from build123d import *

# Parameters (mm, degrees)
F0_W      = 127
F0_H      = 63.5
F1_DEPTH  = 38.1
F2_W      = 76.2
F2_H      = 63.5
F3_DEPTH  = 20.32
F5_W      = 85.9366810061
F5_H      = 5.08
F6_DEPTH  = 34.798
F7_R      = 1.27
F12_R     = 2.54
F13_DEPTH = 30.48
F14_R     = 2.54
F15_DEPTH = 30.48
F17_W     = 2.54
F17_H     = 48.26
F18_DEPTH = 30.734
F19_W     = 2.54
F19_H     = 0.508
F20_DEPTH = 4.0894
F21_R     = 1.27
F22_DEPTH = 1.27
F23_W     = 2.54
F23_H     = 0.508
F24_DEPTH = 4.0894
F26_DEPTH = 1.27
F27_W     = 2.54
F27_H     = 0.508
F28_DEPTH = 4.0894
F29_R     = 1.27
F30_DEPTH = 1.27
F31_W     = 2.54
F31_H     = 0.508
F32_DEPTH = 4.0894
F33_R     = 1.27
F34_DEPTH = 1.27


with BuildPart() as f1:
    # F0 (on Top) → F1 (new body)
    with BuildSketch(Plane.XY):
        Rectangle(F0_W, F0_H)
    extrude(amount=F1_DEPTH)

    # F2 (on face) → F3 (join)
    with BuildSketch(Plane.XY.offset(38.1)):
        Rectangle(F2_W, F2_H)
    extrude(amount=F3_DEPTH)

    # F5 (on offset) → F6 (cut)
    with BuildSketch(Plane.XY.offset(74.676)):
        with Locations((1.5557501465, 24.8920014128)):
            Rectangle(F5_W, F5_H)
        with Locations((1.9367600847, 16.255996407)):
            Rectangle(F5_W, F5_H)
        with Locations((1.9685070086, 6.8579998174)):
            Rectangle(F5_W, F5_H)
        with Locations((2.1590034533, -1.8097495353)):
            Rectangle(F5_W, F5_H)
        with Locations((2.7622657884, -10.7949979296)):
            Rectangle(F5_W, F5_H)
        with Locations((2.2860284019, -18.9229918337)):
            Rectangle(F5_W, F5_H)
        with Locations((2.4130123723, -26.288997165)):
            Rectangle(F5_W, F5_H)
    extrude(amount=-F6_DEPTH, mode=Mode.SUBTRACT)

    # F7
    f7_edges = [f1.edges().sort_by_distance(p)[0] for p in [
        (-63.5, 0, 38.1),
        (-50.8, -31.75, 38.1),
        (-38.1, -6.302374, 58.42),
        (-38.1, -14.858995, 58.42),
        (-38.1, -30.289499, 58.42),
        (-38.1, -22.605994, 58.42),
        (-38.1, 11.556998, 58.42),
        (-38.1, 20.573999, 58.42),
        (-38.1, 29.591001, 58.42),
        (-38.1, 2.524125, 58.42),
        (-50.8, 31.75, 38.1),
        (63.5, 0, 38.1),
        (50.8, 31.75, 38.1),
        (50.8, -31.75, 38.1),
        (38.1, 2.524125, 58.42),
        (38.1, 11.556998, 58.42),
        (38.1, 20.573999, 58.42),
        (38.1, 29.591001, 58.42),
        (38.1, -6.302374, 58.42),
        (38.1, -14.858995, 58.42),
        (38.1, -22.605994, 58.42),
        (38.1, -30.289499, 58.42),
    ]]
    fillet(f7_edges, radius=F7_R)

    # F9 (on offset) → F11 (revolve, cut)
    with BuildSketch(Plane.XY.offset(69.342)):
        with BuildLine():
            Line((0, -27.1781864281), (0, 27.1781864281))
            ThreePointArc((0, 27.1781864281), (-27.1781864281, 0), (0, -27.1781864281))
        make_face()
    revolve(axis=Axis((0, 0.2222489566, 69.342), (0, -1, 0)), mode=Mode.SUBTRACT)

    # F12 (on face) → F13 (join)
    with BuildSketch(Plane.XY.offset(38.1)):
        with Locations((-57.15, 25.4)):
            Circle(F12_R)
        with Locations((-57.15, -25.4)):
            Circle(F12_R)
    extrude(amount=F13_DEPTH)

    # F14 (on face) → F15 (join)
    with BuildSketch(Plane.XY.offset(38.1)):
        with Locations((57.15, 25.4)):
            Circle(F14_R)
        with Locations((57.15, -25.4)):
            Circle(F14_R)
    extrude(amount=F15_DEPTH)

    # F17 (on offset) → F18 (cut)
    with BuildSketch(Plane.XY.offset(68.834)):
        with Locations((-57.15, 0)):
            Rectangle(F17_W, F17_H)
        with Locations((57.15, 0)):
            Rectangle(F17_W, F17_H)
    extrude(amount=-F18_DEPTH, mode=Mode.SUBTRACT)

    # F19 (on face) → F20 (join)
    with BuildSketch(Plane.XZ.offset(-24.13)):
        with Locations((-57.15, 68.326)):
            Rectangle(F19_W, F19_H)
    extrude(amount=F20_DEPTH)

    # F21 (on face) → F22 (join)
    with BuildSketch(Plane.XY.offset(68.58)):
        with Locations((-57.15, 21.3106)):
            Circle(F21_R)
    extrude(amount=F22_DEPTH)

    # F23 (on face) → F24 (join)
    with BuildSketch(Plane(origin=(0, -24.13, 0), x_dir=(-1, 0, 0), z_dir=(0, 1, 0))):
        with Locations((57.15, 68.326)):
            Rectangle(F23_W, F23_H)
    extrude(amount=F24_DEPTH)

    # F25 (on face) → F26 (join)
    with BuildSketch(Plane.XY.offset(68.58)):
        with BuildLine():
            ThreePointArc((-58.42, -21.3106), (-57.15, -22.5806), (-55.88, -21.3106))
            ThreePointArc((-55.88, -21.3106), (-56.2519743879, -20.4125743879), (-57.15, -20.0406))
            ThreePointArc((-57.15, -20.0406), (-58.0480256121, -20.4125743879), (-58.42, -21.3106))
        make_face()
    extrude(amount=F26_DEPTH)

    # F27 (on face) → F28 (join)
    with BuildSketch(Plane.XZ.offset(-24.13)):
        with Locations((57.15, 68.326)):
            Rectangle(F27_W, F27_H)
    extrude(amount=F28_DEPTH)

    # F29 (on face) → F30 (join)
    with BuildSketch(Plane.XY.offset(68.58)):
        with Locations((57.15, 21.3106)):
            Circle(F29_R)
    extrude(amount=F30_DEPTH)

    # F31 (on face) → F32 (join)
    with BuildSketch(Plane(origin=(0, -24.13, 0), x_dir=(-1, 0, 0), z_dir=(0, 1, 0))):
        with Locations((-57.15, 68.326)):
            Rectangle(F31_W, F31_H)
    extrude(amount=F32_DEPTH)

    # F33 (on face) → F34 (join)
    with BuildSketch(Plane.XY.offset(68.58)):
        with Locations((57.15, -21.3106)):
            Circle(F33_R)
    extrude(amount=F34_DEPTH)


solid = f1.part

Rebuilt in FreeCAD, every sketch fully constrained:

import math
import FreeCAD as App
import Part
import Sketcher
Q = App.Units.Quantity


def edges_at(feature, points):
    """Names of the edges that pass closest to the given points."""
    edges = feature.Shape.Edges
    near = lambda p: min(range(len(edges)), key=lambda i: edges[i].distToShape(Part.Vertex(*p))[0])
    return sorted({f"Edge{near(p) + 1}" for p in points})


def add_polygon(sketch, points):
    """Adds a closed chain of lines whose ends are joined by coincident constraints."""
    first, n = sketch.GeometryCount, len(points)
    for a, b in zip(points, points[1:] + points[:1]):
        sketch.addGeometry(Part.LineSegment(App.Vector(*a, 0), App.Vector(*b, 0)), False)
    for i in range(n):
        sketch.addConstraint(Sketcher.Constraint("Coincident", first + i, 2, first + (i + 1) % n, 1))

doc = App.newDocument("Part")
params = doc.addObject("Spreadsheet::Sheet", "Params")
for row, (alias, value) in enumerate([
    ("sketch1_width", "5 in"),
    ("sketch1_height", "2.5 in"),
    ("pad1_length", "1.5 in"),
    ("sketch2_width", "3 in"),
    ("sketch2_height", "2.5 in"),
    ("pad2_length", "0.8 in"),
    ("sketch3_height", "0.2 in"),
    ("pocket1_length", "1.37 in"),
    ("fillet_radius", "0.05 in"),
    ("groove_angle", "360 deg"),
    ("sketch5_diameter", "0.2 in"),
    ("pad3_length", "1.2 in"),
    ("sketch6_diameter", "0.2 in"),
    ("pad4_length", "1.2 in"),
    ("sketch7_width", "0.1 in"),
    ("sketch7_height", "1.9 in"),
    ("pocket2_length", "1.21 in"),
    ("sketch8_width", "0.1 in"),
    ("sketch8_height", "0.02 in"),
    ("pad5_length", "0.161 in"),
    ("sketch9_diameter", "0.1 in"),
    ("pad6_length", "0.05 in"),
    ("sketch10_width", "0.1 in"),
    ("sketch10_height", "0.02 in"),
    ("pad7_length", "0.161 in"),
    ("sketch11_radius", "0.05 in"),
    ("pad8_length", "0.05 in"),
    ("sketch12_width", "0.1 in"),
    ("sketch12_height", "0.02 in"),
    ("pad9_length", "0.161 in"),
    ("sketch13_diameter", "0.1 in"),
    ("pad10_length", "0.05 in"),
    ("sketch14_width", "0.1 in"),
    ("sketch14_height", "0.02 in"),
    ("pad11_length", "0.161 in"),
    ("sketch15_diameter", "0.1 in"),
    ("pad12_length", "0.05 in"),
], start=1):
    params.set(f"A{row}", alias)
    params.set(f"B{row}", "=" + value)
    params.setAlias(f"B{row}", alias)

body = doc.addObject("PartDesign::Body", "Body")

sketch1 = body.newObject("Sketcher::SketchObject", "Sketch")
sketch1.AttachmentSupport = (doc.getObject("XY_Plane"), [""])
sketch1.MapMode = "FlatFace"
add_polygon(sketch1, [(-64, 32), (-64, -32), (64, -32), (64, 32)])
sketch1.addConstraint(Sketcher.Constraint("Vertical", 0))
sketch1.addConstraint(Sketcher.Constraint("Horizontal", 1))
sketch1.addConstraint(Sketcher.Constraint("Vertical", 2))
sketch1.addConstraint(Sketcher.Constraint("Horizontal", 3))
sketch1.addConstraint(Sketcher.Constraint("Symmetric", 0, 2, 2, 2, -1, 1))
sketch1.addConstraint(Sketcher.Constraint("DistanceX", 1, 1, 1, 2, Q("5 in")))
sketch1.addConstraint(Sketcher.Constraint("DistanceY", 0, 2, 0, 1, Q("2.5 in")))
sketch1.setExpression("Constraints[9]", "Params.sketch1_width")
sketch1.setExpression("Constraints[10]", "Params.sketch1_height")
pad1 = body.newObject("PartDesign::Pad", "Pad")
pad1.Profile = sketch1
pad1.setExpression("Length", "Params.pad1_length")

sketch2 = body.newObject("Sketcher::SketchObject", "Sketch001")
sketch2.AttachmentSupport = (doc.getObject("XY_Plane"), [""])
sketch2.MapMode = "FlatFace"
sketch2.AttachmentOffset = App.Placement(App.Vector(0, 0, 1.5 * 25.4), App.Rotation())
add_polygon(sketch2, [(-38, 32), (-38, -32), (38, -32), (38, 32)])
sketch2.addConstraint(Sketcher.Constraint("Vertical", 0))
sketch2.addConstraint(Sketcher.Constraint("Horizontal", 1))
sketch2.addConstraint(Sketcher.Constraint("Vertical", 2))
sketch2.addConstraint(Sketcher.Constraint("Horizontal", 3))
sketch2.addConstraint(Sketcher.Constraint("Symmetric", 0, 2, 2, 2, -1, 1))
sketch2.addConstraint(Sketcher.Constraint("DistanceX", 1, 1, 1, 2, Q("3 in")))
sketch2.addConstraint(Sketcher.Constraint("DistanceY", 0, 2, 0, 1, Q("2.5 in")))
sketch2.setExpression("Constraints[9]", "Params.sketch2_width")
sketch2.setExpression("Constraints[10]", "Params.sketch2_height")
pad2 = body.newObject("PartDesign::Pad", "Pad001")
pad2.Profile = sketch2
pad2.setExpression("Length", "Params.pad2_length")

sketch3 = body.newObject("Sketcher::SketchObject", "Sketch002")
sketch3.AttachmentSupport = (doc.getObject("XY_Plane"), [""])
sketch3.MapMode = "FlatFace"
sketch3.AttachmentOffset = App.Placement(App.Vector(0, 0, 2.94 * 25.4), App.Rotation())
add_polygon(sketch3, [(-41, 27), (-41, 22), (45, 22), (45, 27)])
add_polygon(sketch3, [(-41, 19), (-41, 14), (45, 14), (45, 19)])
add_polygon(sketch3, [(-41, 9), (-41, 4), (45, 4), (45, 9)])
add_polygon(sketch3, [(-41, 1), (-41, -4), (45, -4), (45, 1)])
add_polygon(sketch3, [(-40, -8), (-40, -13), (46, -13), (46, -8)])
add_polygon(sketch3, [(-41, -16), (-41, -21), (45, -21), (45, -16)])
add_polygon(sketch3, [(-41, -24), (-41, -29), (45, -29), (45, -24)])
sketch3.addConstraint(Sketcher.Constraint("Vertical", 0))
sketch3.addConstraint(Sketcher.Constraint("Horizontal", 1))
sketch3.addConstraint(Sketcher.Constraint("Vertical", 2))
sketch3.addConstraint(Sketcher.Constraint("Horizontal", 3))
sketch3.addConstraint(Sketcher.Constraint("Vertical", 4))
sketch3.addConstraint(Sketcher.Constraint("Horizontal", 5))
sketch3.addConstraint(Sketcher.Constraint("Vertical", 6))
sketch3.addConstraint(Sketcher.Constraint("Horizontal", 7))
sketch3.addConstraint(Sketcher.Constraint("Vertical", 8))
sketch3.addConstraint(Sketcher.Constraint("Horizontal", 9))
sketch3.addConstraint(Sketcher.Constraint("Vertical", 10))
sketch3.addConstraint(Sketcher.Constraint("Horizontal", 11))
sketch3.addConstraint(Sketcher.Constraint("Vertical", 12))
sketch3.addConstraint(Sketcher.Constraint("Horizontal", 13))
sketch3.addConstraint(Sketcher.Constraint("Vertical", 14))
sketch3.addConstraint(Sketcher.Constraint("Horizontal", 15))
sketch3.addConstraint(Sketcher.Constraint("Vertical", 16))
sketch3.addConstraint(Sketcher.Constraint("Horizontal", 17))
sketch3.addConstraint(Sketcher.Constraint("Vertical", 18))
sketch3.addConstraint(Sketcher.Constraint("Horizontal", 19))
sketch3.addConstraint(Sketcher.Constraint("Vertical", 20))
sketch3.addConstraint(Sketcher.Constraint("Horizontal", 21))
sketch3.addConstraint(Sketcher.Constraint("Vertical", 22))
sketch3.addConstraint(Sketcher.Constraint("Horizontal", 23))
sketch3.addConstraint(Sketcher.Constraint("Vertical", 24))
sketch3.addConstraint(Sketcher.Constraint("Horizontal", 25))
sketch3.addConstraint(Sketcher.Constraint("Vertical", 26))
sketch3.addConstraint(Sketcher.Constraint("Horizontal", 27))
sketch3.addConstraint(Sketcher.Constraint("Equal", 3, 5))
sketch3.addConstraint(Sketcher.Constraint("Equal", 7, 9))
sketch3.addConstraint(Sketcher.Constraint("Equal", 11, 13))
sketch3.addConstraint(Sketcher.Constraint("Equal", 15, 17))
sketch3.addConstraint(Sketcher.Constraint("Equal", 19, 21))
sketch3.addConstraint(Sketcher.Constraint("Equal", 23, 25))
sketch3.addConstraint(Sketcher.Constraint("Equal", 2, 4))
sketch3.addConstraint(Sketcher.Constraint("Equal", 6, 8))
sketch3.addConstraint(Sketcher.Constraint("Equal", 10, 12))
sketch3.addConstraint(Sketcher.Constraint("Equal", 14, 16))
sketch3.addConstraint(Sketcher.Constraint("Equal", 18, 20))
sketch3.addConstraint(Sketcher.Constraint("Equal", 22, 24))
sketch3.addConstraint(Sketcher.Constraint("DistanceY", 0, 2, 0, 1, Q("0.2 in")))
sketch3.addConstraint(Sketcher.Constraint("DistanceY", -1, 1, 0, 2, Q("0.8800001 in")))
sketch3.addConstraint(Sketcher.Constraint("DistanceY", -1, 1, 4, 2, Q("0.5399999 in")))
sketch3.addConstraint(Sketcher.Constraint("DistanceY", -1, 1, 8, 2, Q("0.17 in")))
sketch3.addConstraint(Sketcher.Constraint("DistanceY", 24, 2, 16, 2, Q("0.61 in")))
sketch3.addConstraint(Sketcher.Constraint("DistanceY", 16, 2, -1, 1, Q("0.5249999 in")))
sketch3.addConstraint(Sketcher.Constraint("DistanceX", 8, 2, 12, 2, Q("0.0074999 in")))
sketch3.addConstraint(Sketcher.Constraint("DistanceX", 1, 1, 1, 2, 85.936681))
sketch3.addConstraint(Sketcher.Constraint("DistanceX", -1, 1, 5, 2, 44.905101))
sketch3.addConstraint(Sketcher.Constraint("DistanceX", 0, 2, -1, 1, 41.41259))
sketch3.addConstraint(Sketcher.Constraint("DistanceY", 12, 2, -1, 1, 4.34975))
sketch3.addConstraint(Sketcher.Constraint("DistanceY", 20, 2, -1, 1, 21.462992))
sketch3.addConstraint(Sketcher.Constraint("DistanceX", -1, 1, 21, 2, 45.254369))
sketch3.addConstraint(Sketcher.Constraint("DistanceX", 24, 2, -1, 1, 40.555328))
sketch3.addConstraint(Sketcher.Constraint("DistanceX", 8, 2, 16, 2, 0.793759))
sketch3.addConstraint(Sketcher.Constraint("DistanceX", 8, 2, 20, 2, 0.317521))
sketch3.setExpression("Constraints[68]", "Params.sketch3_height")
pocket1 = body.newObject("PartDesign::Pocket", "Pocket")
pocket1.Profile = sketch3
pocket1.setExpression("Length", "Params.pocket1_length")
doc.recompute()

fillet = body.newObject("PartDesign::Fillet", "Fillet")
fillet.Base = (pocket1, edges_at(pocket1, [
    (-63.5, 0, 38.1),
    (-50.8, -31.75, 38.1),
    (-38.1, -6.302, 58.42),
    (-38.1, -14.859, 58.42),
    (-38.1, -30.289, 58.42),
    (-38.1, -22.606, 58.42),
    (-38.1, 11.557, 58.42),
    (-38.1, 20.574, 58.42),
    (-38.1, 29.591, 58.42),
    (-38.1, 2.524, 58.42),
    (-50.8, 31.75, 38.1),
    (63.5, 0, 38.1),
    (50.8, 31.75, 38.1),
    (50.8, -31.75, 38.1),
    (38.1, 2.524, 58.42),
    (38.1, 11.557, 58.42),
    (38.1, 20.574, 58.42),
    (38.1, 29.591, 58.42),
    (38.1, -6.302, 58.42),
    (38.1, -14.859, 58.42),
    (38.1, -22.606, 58.42),
    (38.1, -30.289, 58.42),
]))
fillet.setExpression("Radius", "Params.fillet_radius")

sketch4 = body.newObject("Sketcher::SketchObject", "Sketch003")
sketch4.AttachmentSupport = (doc.getObject("XY_Plane"), [""])
sketch4.MapMode = "FlatFace"
sketch4.AttachmentOffset = App.Placement(App.Vector(0, 0, 2.73 * 25.4), App.Rotation())
sketch4.addGeometry(Part.LineSegment(App.Vector(0, -27, 0), App.Vector(0, 27, 0)), False)
sketch4.addGeometry(Part.ArcOfCircle(Part.Circle(App.Vector(0, 0, 0), App.Vector(0, 0, 1), 27), math.radians(90), math.radians(270)), False)
sketch4.addConstraint(Sketcher.Constraint("Coincident", 0, 1, 1, 2))
sketch4.addConstraint(Sketcher.Constraint("Coincident", 1, 1, 0, 2))
sketch4.addConstraint(Sketcher.Constraint("Vertical", 0))
sketch4.addConstraint(Sketcher.Constraint("Coincident", 1, 3, -1, 1))
sketch4.addConstraint(Sketcher.Constraint("PointOnObject", 0, 1, -2))
sketch4.addConstraint(Sketcher.Constraint("Radius", 1, 27.178186))
groove = body.newObject("PartDesign::Groove", "Groove")
groove.Profile = sketch4
groove.ReferenceAxis = (sketch4, ["V_Axis"])
groove.setExpression("Angle", "Params.groove_angle")

sketch5 = body.newObject("Sketcher::SketchObject", "Sketch004")
sketch5.AttachmentSupport = (doc.getObject("XY_Plane"), [""])
sketch5.MapMode = "FlatFace"
sketch5.AttachmentOffset = App.Placement(App.Vector(0, 0, 1.5 * 25.4), App.Rotation())
sketch5.addGeometry(Part.Circle(App.Vector(-57.1, 25.4, 0), App.Vector(0, 0, 1), 2.5), False)
sketch5.addGeometry(Part.Circle(App.Vector(-57.1, -25.4, 0), App.Vector(0, 0, 1), 2.5), False)
sketch5.addConstraint(Sketcher.Constraint("Equal", 0, 1))
sketch5.addConstraint(Sketcher.Constraint("Symmetric", 0, 3, 1, 3, -1))
sketch5.addConstraint(Sketcher.Constraint("Diameter", 0, Q("0.2 in")))
sketch5.addConstraint(Sketcher.Constraint("DistanceY", -1, 1, 0, 3, Q("1 in")))
sketch5.addConstraint(Sketcher.Constraint("DistanceX", 0, 3, -1, 1, Q("2.25 in")))
sketch5.setExpression("Constraints[2]", "Params.sketch5_diameter")
pad3 = body.newObject("PartDesign::Pad", "Pad002")
pad3.Profile = sketch5
pad3.setExpression("Length", "Params.pad3_length")

sketch6 = body.newObject("Sketcher::SketchObject", "Sketch005")
sketch6.AttachmentSupport = (doc.getObject("XY_Plane"), [""])
sketch6.MapMode = "FlatFace"
sketch6.AttachmentOffset = App.Placement(App.Vector(0, 0, 1.5 * 25.4), App.Rotation())
sketch6.addGeometry(Part.Circle(App.Vector(57.1, 25.4, 0), App.Vector(0, 0, 1), 2.5), False)
sketch6.addGeometry(Part.Circle(App.Vector(57.1, -25.4, 0), App.Vector(0, 0, 1), 2.5), False)
sketch6.addConstraint(Sketcher.Constraint("Equal", 0, 1))
sketch6.addConstraint(Sketcher.Constraint("Symmetric", 0, 3, 1, 3, -1))
sketch6.addConstraint(Sketcher.Constraint("Diameter", 0, Q("0.2 in")))
sketch6.addConstraint(Sketcher.Constraint("DistanceY", -1, 1, 0, 3, Q("1 in")))
sketch6.addConstraint(Sketcher.Constraint("DistanceX", -1, 1, 0, 3, Q("2.25 in")))
sketch6.setExpression("Constraints[2]", "Params.sketch6_diameter")
pad4 = body.newObject("PartDesign::Pad", "Pad003")
pad4.Profile = sketch6
pad4.setExpression("Length", "Params.pad4_length")

sketch7 = body.newObject("Sketcher::SketchObject", "Sketch006")
sketch7.AttachmentSupport = (doc.getObject("XY_Plane"), [""])
sketch7.MapMode = "FlatFace"
sketch7.AttachmentOffset = App.Placement(App.Vector(0, 0, 2.71 * 25.4), App.Rotation())
add_polygon(sketch7, [(-58.4, 24.1), (-58.4, -24.1), (-55.9, -24.1), (-55.9, 24.1)])
add_polygon(sketch7, [(55.9, 24.1), (55.9, -24.1), (58.4, -24.1), (58.4, 24.1)])
sketch7.addConstraint(Sketcher.Constraint("Vertical", 0))
sketch7.addConstraint(Sketcher.Constraint("Horizontal", 1))
sketch7.addConstraint(Sketcher.Constraint("Vertical", 2))
sketch7.addConstraint(Sketcher.Constraint("Horizontal", 3))
sketch7.addConstraint(Sketcher.Constraint("Vertical", 4))
sketch7.addConstraint(Sketcher.Constraint("Horizontal", 5))
sketch7.addConstraint(Sketcher.Constraint("Vertical", 6))
sketch7.addConstraint(Sketcher.Constraint("Horizontal", 7))
sketch7.addConstraint(Sketcher.Constraint("Symmetric", 2, 2, 4, 2, -1, 1))
sketch7.addConstraint(Sketcher.Constraint("Symmetric", 0, 2, 6, 2, -1, 1))
sketch7.addConstraint(Sketcher.Constraint("Horizontal", 1, 2, 4, 2))
sketch7.addConstraint(Sketcher.Constraint("DistanceX", 1, 1, 1, 2, Q("0.1 in")))
sketch7.addConstraint(Sketcher.Constraint("DistanceY", 0, 2, 0, 1, Q("1.9 in")))
sketch7.addConstraint(Sketcher.Constraint("DistanceX", 0, 2, -1, 1, Q("2.3 in")))
sketch7.setExpression("Constraints[19]", "Params.sketch7_width")
sketch7.setExpression("Constraints[20]", "Params.sketch7_height")
pocket2 = body.newObject("PartDesign::Pocket", "Pocket001")
pocket2.Profile = sketch7
pocket2.setExpression("Length", "Params.pocket2_length")

sketch8 = body.newObject("Sketcher::SketchObject", "Sketch007")
sketch8.AttachmentSupport = (doc.getObject("XZ_Plane"), [""])
sketch8.MapMode = "FlatFace"
sketch8.AttachmentOffset = App.Placement(App.Vector(0, 0, -0.95 * 25.4), App.Rotation())
add_polygon(sketch8, [(-58.4, 68.6), (-58.4, 68.1), (-55.9, 68.1), (-55.9, 68.6)])
sketch8.addConstraint(Sketcher.Constraint("Vertical", 0))
sketch8.addConstraint(Sketcher.Constraint("Horizontal", 1))
sketch8.addConstraint(Sketcher.Constraint("Vertical", 2))
sketch8.addConstraint(Sketcher.Constraint("Horizontal", 3))
sketch8.addConstraint(Sketcher.Constraint("DistanceX", 1, 1, 1, 2, Q("0.1 in")))
sketch8.addConstraint(Sketcher.Constraint("DistanceY", 0, 2, 0, 1, Q("0.02 in")))
sketch8.addConstraint(Sketcher.Constraint("DistanceX", 0, 2, -1, 1, Q("2.3 in")))
sketch8.addConstraint(Sketcher.Constraint("DistanceY", -1, 1, 2, 2, Q("2.7 in")))
sketch8.setExpression("Constraints[8]", "Params.sketch8_width")
sketch8.setExpression("Constraints[9]", "Params.sketch8_height")
pad5 = body.newObject("PartDesign::Pad", "Pad004")
pad5.Profile = sketch8
pad5.setExpression("Length", "Params.pad5_length")

sketch9 = body.newObject("Sketcher::SketchObject", "Sketch008")
sketch9.AttachmentSupport = (doc.getObject("XY_Plane"), [""])
sketch9.MapMode = "FlatFace"
sketch9.AttachmentOffset = App.Placement(App.Vector(0, 0, 2.7 * 25.4), App.Rotation())
sketch9.addGeometry(Part.Circle(App.Vector(-57.1, 21.3, 0), App.Vector(0, 0, 1), 1.3), False)
sketch9.addConstraint(Sketcher.Constraint("Diameter", 0, Q("0.1 in")))
sketch9.addConstraint(Sketcher.Constraint("DistanceX", 0, 3, -1, 1, Q("2.25 in")))
sketch9.addConstraint(Sketcher.Constraint("DistanceY", -1, 1, 0, 3, Q("0.839 in")))
sketch9.setExpression("Constraints[0]", "Params.sketch9_diameter")
pad6 = body.newObject("PartDesign::Pad", "Pad005")
pad6.Profile = sketch9
pad6.setExpression("Length", "Params.pad6_length")

sketch10 = body.newObject("Sketcher::SketchObject", "Sketch009")
sketch10.AttachmentSupport = (doc.getObject("XZ_Plane"), [""])
sketch10.MapMode = "FlatFace"
sketch10.AttachmentOffset = App.Placement(App.Vector(0, 0, 0.95 * 25.4), App.Rotation())
add_polygon(sketch10, [(-55.9, 68.6), (-55.9, 68.1), (-58.4, 68.1), (-58.4, 68.6)])
sketch10.addConstraint(Sketcher.Constraint("Vertical", 0))
sketch10.addConstraint(Sketcher.Constraint("Horizontal", 1))
sketch10.addConstraint(Sketcher.Constraint("Vertical", 2))
sketch10.addConstraint(Sketcher.Constraint("Horizontal", 3))
sketch10.addConstraint(Sketcher.Constraint("DistanceX", 1, 2, 1, 1, Q("0.1 in")))
sketch10.addConstraint(Sketcher.Constraint("DistanceY", 0, 2, 0, 1, Q("0.02 in")))
sketch10.addConstraint(Sketcher.Constraint("DistanceX", 0, 2, -1, 1, Q("2.2 in")))
sketch10.addConstraint(Sketcher.Constraint("DistanceY", -1, 1, 2, 2, Q("2.7 in")))
sketch10.setExpression("Constraints[8]", "Params.sketch10_width")
sketch10.setExpression("Constraints[9]", "Params.sketch10_height")
pad7 = body.newObject("PartDesign::Pad", "Pad006")
pad7.Profile = sketch10
pad7.setExpression("Length", "Params.pad7_length")
pad7.Reversed = True

sketch11 = body.newObject("Sketcher::SketchObject", "Sketch010")
sketch11.AttachmentSupport = (doc.getObject("XY_Plane"), [""])
sketch11.MapMode = "FlatFace"
sketch11.AttachmentOffset = App.Placement(App.Vector(0, 0, 2.7 * 25.4), App.Rotation())
sketch11.addGeometry(Part.ArcOfCircle(Part.Circle(App.Vector(-57.1, -21.3, 0), App.Vector(0, 0, 1), 1.3), math.radians(180), math.radians(360)), False)
sketch11.addGeometry(Part.ArcOfCircle(Part.Circle(App.Vector(-57.1, -21.3, 0), App.Vector(0, 0, 1), 1.3), math.radians(0), math.radians(90)), False)
sketch11.addGeometry(Part.ArcOfCircle(Part.Circle(App.Vector(-57.1, -21.3, 0), App.Vector(0, 0, 1), 1.3), math.radians(90), math.radians(180)), False)
sketch11.addConstraint(Sketcher.Constraint("Tangent", 0, 2, 1, 1))
sketch11.addConstraint(Sketcher.Constraint("Tangent", 1, 2, 2, 1))
sketch11.addConstraint(Sketcher.Constraint("Tangent", 2, 2, 0, 1))
sketch11.addConstraint(Sketcher.Constraint("Horizontal", 2, 3, 0, 2))
sketch11.addConstraint(Sketcher.Constraint("Horizontal", 0, 2, 2, 2))
sketch11.addConstraint(Sketcher.Constraint("Vertical", 2, 3, 1, 2))
sketch11.addConstraint(Sketcher.Constraint("Radius", 0, Q("0.05 in")))
sketch11.addConstraint(Sketcher.Constraint("DistanceX", 0, 2, -1, 1, Q("2.2 in")))
sketch11.addConstraint(Sketcher.Constraint("DistanceY", 0, 3, -1, 1, Q("0.839 in")))
sketch11.setExpression("Constraints[6]", "Params.sketch11_radius")
pad8 = body.newObject("PartDesign::Pad", "Pad007")
pad8.Profile = sketch11
pad8.setExpression("Length", "Params.pad8_length")

sketch12 = body.newObject("Sketcher::SketchObject", "Sketch011")
sketch12.AttachmentSupport = (doc.getObject("XZ_Plane"), [""])
sketch12.MapMode = "FlatFace"
sketch12.AttachmentOffset = App.Placement(App.Vector(0, 0, -0.95 * 25.4), App.Rotation())
add_polygon(sketch12, [(55.9, 68.6), (55.9, 68.1), (58.4, 68.1), (58.4, 68.6)])
sketch12.addConstraint(Sketcher.Constraint("Vertical", 0))
sketch12.addConstraint(Sketcher.Constraint("Horizontal", 1))
sketch12.addConstraint(Sketcher.Constraint("Vertical", 2))
sketch12.addConstraint(Sketcher.Constraint("Horizontal", 3))
sketch12.addConstraint(Sketcher.Constraint("DistanceX", 1, 1, 1, 2, Q("0.1 in")))
sketch12.addConstraint(Sketcher.Constraint("DistanceY", 0, 2, 0, 1, Q("0.02 in")))
sketch12.addConstraint(Sketcher.Constraint("DistanceX", -1, 1, 0, 2, Q("2.2 in")))
sketch12.addConstraint(Sketcher.Constraint("DistanceY", -1, 1, 2, 2, Q("2.7 in")))
sketch12.setExpression("Constraints[8]", "Params.sketch12_width")
sketch12.setExpression("Constraints[9]", "Params.sketch12_height")
pad9 = body.newObject("PartDesign::Pad", "Pad008")
pad9.Profile = sketch12
pad9.setExpression("Length", "Params.pad9_length")

sketch13 = body.newObject("Sketcher::SketchObject", "Sketch012")
sketch13.AttachmentSupport = (doc.getObject("XY_Plane"), [""])
sketch13.MapMode = "FlatFace"
sketch13.AttachmentOffset = App.Placement(App.Vector(0, 0, 2.7 * 25.4), App.Rotation())
sketch13.addGeometry(Part.Circle(App.Vector(57.1, 21.3, 0), App.Vector(0, 0, 1), 1.3), False)
sketch13.addConstraint(Sketcher.Constraint("Diameter", 0, Q("0.1 in")))
sketch13.addConstraint(Sketcher.Constraint("DistanceX", -1, 1, 0, 3, Q("2.25 in")))
sketch13.addConstraint(Sketcher.Constraint("DistanceY", -1, 1, 0, 3, Q("0.839 in")))
sketch13.setExpression("Constraints[0]", "Params.sketch13_diameter")
pad10 = body.newObject("PartDesign::Pad", "Pad009")
pad10.Profile = sketch13
pad10.setExpression("Length", "Params.pad10_length")

sketch14 = body.newObject("Sketcher::SketchObject", "Sketch013")
sketch14.AttachmentSupport = (doc.getObject("XZ_Plane"), [""])
sketch14.MapMode = "FlatFace"
sketch14.AttachmentOffset = App.Placement(App.Vector(0, 0, 0.95 * 25.4), App.Rotation())
add_polygon(sketch14, [(58.4, 68.6), (58.4, 68.1), (55.9, 68.1), (55.9, 68.6)])
sketch14.addConstraint(Sketcher.Constraint("Vertical", 0))
sketch14.addConstraint(Sketcher.Constraint("Horizontal", 1))
sketch14.addConstraint(Sketcher.Constraint("Vertical", 2))
sketch14.addConstraint(Sketcher.Constraint("Horizontal", 3))
sketch14.addConstraint(Sketcher.Constraint("DistanceX", 1, 2, 1, 1, Q("0.1 in")))
sketch14.addConstraint(Sketcher.Constraint("DistanceY", 0, 2, 0, 1, Q("0.02 in")))
sketch14.addConstraint(Sketcher.Constraint("DistanceX", -1, 1, 0, 2, Q("2.3 in")))
sketch14.addConstraint(Sketcher.Constraint("DistanceY", -1, 1, 2, 2, Q("2.7 in")))
sketch14.setExpression("Constraints[8]", "Params.sketch14_width")
sketch14.setExpression("Constraints[9]", "Params.sketch14_height")
pad11 = body.newObject("PartDesign::Pad", "Pad010")
pad11.Profile = sketch14
pad11.setExpression("Length", "Params.pad11_length")
pad11.Reversed = True

sketch15 = body.newObject("Sketcher::SketchObject", "Sketch014")
sketch15.AttachmentSupport = (doc.getObject("XY_Plane"), [""])
sketch15.MapMode = "FlatFace"
sketch15.AttachmentOffset = App.Placement(App.Vector(0, 0, 2.7 * 25.4), App.Rotation())
sketch15.addGeometry(Part.Circle(App.Vector(57.1, -21.3, 0), App.Vector(0, 0, 1), 1.3), False)
sketch15.addConstraint(Sketcher.Constraint("Diameter", 0, Q("0.1 in")))
sketch15.addConstraint(Sketcher.Constraint("DistanceX", -1, 1, 0, 3, Q("2.25 in")))
sketch15.addConstraint(Sketcher.Constraint("DistanceY", 0, 3, -1, 1, Q("0.839 in")))
sketch15.setExpression("Constraints[0]", "Params.sketch15_diameter")
pad12 = body.newObject("PartDesign::Pad", "Pad011")
pad12.Profile = sketch15
pad12.setExpression("Length", "Params.pad12_length")

doc.recompute()
